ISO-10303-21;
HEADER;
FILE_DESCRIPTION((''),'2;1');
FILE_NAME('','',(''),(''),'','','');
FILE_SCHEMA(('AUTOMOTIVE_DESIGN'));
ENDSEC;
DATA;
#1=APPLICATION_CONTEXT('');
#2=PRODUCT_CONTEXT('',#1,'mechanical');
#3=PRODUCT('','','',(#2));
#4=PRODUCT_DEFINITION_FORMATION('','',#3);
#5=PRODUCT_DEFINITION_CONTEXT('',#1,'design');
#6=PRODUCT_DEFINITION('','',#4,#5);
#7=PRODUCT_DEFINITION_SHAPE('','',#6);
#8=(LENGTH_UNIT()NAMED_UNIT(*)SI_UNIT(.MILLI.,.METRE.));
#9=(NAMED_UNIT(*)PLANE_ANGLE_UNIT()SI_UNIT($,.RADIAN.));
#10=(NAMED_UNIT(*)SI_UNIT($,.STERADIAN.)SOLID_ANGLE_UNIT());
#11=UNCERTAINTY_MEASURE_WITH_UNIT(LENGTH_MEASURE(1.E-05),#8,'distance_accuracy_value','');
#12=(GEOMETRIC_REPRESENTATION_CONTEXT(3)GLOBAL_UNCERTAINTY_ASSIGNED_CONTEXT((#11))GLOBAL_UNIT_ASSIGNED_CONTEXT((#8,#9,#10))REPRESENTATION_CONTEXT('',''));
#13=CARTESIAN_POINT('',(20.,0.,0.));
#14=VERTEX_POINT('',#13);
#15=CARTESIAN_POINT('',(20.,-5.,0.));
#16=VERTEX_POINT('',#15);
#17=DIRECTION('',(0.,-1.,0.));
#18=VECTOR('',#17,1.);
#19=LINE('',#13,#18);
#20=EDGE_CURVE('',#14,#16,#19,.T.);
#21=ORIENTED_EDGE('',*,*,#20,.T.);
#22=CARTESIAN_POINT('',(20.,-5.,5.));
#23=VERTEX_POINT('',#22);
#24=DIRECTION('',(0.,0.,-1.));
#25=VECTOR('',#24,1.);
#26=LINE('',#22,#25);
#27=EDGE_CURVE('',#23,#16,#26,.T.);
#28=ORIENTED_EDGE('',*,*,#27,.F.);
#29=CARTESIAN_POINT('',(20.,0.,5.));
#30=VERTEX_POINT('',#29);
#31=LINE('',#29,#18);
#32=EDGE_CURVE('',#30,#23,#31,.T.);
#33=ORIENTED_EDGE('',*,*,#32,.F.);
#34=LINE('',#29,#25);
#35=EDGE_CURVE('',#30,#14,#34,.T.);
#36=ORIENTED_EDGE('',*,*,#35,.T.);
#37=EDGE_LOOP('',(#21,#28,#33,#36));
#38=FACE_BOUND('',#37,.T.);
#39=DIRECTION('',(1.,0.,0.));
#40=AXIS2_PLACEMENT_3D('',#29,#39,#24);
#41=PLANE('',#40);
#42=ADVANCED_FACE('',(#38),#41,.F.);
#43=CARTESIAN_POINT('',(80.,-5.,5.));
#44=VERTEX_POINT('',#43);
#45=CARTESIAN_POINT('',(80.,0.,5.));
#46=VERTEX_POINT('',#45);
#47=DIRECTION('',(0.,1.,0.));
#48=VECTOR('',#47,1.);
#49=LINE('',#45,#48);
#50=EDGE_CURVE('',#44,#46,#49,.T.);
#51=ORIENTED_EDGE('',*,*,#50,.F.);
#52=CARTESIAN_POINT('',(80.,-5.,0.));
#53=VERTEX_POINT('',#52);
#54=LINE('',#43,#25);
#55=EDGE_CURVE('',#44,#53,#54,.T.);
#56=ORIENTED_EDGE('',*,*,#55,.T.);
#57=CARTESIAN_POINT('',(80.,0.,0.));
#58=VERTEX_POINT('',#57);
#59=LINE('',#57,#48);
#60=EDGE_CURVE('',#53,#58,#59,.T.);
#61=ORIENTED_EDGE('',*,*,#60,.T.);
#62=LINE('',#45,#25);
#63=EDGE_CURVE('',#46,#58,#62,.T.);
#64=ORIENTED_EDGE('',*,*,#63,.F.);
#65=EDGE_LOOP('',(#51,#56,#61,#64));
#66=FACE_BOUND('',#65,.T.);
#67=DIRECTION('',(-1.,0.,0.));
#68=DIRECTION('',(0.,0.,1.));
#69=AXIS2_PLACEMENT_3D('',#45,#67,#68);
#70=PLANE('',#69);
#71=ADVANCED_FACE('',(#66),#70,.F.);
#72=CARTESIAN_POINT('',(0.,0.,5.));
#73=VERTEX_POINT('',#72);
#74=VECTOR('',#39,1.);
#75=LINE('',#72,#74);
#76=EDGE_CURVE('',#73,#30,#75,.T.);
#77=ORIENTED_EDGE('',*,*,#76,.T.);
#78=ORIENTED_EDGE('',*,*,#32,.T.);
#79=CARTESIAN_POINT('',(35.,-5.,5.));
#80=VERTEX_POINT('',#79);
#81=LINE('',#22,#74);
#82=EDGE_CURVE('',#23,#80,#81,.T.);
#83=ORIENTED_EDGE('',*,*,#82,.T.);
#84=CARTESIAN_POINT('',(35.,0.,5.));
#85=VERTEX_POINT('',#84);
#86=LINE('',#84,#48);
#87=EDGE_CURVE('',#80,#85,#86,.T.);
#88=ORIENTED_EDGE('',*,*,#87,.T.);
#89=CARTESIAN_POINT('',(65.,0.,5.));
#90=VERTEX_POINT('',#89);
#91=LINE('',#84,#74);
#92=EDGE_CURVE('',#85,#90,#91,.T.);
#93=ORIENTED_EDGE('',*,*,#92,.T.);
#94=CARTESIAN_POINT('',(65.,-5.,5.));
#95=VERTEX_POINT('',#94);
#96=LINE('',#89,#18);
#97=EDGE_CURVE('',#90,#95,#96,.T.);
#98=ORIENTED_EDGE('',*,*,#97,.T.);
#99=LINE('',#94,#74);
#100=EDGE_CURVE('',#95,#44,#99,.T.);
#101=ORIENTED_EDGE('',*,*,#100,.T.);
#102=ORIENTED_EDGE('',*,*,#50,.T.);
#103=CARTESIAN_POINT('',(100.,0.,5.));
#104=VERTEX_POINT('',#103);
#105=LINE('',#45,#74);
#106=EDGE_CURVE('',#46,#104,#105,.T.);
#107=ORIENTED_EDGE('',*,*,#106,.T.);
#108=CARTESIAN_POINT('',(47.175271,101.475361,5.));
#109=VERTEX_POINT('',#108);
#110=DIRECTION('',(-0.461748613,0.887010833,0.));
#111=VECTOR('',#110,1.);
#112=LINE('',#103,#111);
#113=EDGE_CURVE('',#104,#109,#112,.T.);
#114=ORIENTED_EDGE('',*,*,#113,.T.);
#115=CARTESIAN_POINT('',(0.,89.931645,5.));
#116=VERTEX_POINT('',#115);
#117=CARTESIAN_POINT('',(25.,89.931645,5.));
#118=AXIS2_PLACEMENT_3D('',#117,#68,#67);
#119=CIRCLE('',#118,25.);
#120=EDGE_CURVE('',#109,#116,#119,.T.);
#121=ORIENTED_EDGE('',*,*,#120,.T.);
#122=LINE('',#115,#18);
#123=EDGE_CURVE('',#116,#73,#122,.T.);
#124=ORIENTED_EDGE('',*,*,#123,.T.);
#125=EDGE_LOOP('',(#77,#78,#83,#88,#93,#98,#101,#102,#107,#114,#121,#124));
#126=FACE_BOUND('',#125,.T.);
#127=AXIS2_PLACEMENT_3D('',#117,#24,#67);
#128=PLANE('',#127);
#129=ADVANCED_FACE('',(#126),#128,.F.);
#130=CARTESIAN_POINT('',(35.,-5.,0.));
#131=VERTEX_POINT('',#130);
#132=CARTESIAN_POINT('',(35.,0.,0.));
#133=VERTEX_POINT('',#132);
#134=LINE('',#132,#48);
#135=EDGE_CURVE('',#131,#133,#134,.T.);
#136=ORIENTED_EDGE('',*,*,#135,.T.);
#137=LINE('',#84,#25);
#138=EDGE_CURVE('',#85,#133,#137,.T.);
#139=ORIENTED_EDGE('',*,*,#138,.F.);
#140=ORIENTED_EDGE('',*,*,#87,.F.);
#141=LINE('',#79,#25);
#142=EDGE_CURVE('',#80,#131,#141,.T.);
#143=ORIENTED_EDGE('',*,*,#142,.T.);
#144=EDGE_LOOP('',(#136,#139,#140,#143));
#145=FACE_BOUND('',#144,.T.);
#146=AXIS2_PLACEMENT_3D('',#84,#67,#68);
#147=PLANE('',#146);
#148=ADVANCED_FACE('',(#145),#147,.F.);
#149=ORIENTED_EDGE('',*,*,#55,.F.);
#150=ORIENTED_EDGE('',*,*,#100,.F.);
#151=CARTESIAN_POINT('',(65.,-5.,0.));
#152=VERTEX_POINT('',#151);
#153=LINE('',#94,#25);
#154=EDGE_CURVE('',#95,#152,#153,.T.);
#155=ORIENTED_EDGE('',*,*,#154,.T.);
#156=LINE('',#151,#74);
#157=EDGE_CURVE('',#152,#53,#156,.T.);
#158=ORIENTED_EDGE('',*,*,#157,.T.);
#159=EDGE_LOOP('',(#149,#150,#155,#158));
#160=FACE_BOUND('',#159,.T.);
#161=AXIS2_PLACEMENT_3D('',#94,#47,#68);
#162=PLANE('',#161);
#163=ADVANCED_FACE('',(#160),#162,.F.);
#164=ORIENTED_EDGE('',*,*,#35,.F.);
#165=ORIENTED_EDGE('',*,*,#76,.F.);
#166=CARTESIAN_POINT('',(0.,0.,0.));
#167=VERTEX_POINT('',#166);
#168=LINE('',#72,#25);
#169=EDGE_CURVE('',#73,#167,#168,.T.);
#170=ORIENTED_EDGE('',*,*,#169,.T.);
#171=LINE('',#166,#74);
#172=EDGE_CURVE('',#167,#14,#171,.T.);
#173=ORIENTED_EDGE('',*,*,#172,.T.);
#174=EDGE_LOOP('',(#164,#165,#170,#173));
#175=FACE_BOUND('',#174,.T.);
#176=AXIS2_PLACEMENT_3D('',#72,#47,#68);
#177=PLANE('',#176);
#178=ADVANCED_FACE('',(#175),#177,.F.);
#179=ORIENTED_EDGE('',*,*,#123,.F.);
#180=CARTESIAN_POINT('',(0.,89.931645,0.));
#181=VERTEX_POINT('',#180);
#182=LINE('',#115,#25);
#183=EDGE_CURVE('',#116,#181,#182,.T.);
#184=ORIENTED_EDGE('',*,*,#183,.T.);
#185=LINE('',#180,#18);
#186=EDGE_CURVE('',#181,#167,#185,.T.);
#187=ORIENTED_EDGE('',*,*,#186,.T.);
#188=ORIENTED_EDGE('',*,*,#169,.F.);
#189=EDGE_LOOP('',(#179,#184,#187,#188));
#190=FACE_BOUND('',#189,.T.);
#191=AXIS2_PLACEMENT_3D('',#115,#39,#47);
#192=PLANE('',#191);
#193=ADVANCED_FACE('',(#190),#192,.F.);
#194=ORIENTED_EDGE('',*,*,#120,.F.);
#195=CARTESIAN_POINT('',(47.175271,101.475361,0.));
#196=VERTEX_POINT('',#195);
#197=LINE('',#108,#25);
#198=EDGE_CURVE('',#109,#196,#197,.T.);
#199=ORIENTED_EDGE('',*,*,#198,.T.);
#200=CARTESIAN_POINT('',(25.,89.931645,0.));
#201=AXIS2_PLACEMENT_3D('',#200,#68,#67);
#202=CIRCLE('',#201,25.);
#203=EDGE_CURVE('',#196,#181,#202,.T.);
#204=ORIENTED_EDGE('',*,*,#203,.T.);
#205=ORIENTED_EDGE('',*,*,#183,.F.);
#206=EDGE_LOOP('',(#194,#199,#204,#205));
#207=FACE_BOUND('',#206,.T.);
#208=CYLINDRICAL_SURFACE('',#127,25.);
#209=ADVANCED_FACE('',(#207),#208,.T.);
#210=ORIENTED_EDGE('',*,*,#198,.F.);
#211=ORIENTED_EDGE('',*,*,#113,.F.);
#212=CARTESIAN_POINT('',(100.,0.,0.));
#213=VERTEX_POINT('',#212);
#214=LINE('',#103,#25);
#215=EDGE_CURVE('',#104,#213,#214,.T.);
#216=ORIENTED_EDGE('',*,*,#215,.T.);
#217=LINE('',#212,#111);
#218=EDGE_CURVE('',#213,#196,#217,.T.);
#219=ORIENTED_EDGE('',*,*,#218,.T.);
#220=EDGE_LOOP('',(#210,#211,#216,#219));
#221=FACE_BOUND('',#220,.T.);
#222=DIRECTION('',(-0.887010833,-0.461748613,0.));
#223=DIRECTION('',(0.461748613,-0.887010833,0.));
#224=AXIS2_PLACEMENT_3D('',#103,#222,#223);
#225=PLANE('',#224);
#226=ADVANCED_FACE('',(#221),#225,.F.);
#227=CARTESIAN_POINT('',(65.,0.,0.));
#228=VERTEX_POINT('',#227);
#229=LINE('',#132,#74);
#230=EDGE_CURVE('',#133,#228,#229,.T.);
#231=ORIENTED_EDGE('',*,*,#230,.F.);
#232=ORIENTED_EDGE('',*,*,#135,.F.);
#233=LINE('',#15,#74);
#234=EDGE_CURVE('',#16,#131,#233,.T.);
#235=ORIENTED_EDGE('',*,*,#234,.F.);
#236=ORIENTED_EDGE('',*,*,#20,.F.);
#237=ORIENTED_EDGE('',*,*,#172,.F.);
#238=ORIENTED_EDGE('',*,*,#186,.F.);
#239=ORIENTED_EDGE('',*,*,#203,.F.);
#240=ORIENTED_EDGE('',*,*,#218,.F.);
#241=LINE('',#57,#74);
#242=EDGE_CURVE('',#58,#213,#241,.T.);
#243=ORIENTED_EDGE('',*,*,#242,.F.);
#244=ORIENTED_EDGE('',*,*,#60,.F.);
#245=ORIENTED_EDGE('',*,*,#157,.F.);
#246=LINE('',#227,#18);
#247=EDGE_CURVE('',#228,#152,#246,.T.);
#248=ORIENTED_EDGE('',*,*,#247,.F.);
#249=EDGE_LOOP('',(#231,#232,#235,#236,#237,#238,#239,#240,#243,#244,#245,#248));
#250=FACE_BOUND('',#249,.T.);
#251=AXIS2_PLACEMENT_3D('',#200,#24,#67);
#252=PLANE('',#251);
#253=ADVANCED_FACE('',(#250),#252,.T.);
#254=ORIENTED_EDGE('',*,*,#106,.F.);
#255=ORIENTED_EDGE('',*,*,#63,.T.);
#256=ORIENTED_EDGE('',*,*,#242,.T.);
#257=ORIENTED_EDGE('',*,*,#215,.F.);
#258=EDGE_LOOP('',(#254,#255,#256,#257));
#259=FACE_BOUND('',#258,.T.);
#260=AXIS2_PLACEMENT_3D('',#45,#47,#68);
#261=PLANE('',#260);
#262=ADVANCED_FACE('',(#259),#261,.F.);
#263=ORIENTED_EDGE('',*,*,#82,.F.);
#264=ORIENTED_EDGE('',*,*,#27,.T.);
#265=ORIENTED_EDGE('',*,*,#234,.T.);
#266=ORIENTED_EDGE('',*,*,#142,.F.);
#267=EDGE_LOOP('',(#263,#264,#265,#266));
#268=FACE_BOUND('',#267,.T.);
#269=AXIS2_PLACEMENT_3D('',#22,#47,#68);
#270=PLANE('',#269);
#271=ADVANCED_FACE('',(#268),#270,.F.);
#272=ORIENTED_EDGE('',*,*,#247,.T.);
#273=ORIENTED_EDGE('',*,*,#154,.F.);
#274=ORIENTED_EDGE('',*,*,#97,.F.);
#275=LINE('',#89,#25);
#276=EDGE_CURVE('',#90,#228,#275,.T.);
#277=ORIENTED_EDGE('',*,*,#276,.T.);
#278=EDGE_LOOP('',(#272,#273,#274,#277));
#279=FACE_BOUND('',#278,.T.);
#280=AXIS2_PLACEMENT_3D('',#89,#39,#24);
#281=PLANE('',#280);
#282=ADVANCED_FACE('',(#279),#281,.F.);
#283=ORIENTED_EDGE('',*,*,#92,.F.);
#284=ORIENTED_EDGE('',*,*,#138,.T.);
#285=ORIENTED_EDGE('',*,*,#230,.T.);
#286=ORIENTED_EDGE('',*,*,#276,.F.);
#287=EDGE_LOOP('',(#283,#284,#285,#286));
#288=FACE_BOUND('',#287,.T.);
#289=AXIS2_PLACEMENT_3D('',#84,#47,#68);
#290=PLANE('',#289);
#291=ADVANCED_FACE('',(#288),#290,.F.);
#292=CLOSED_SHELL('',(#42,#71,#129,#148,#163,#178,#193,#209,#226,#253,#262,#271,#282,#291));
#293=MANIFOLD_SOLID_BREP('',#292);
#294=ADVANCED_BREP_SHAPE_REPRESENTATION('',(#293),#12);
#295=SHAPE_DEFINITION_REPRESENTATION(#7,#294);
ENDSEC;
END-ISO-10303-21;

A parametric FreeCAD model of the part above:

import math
import FreeCAD as App
import Part
import Sketcher
Q = App.Units.Quantity

doc = App.newDocument("Part")
body = doc.addObject("PartDesign::Body", "Body")

# Sketch on XY plane
sketch1 = doc.addObject("Sketcher::SketchObject", "Sketch")
body.addObject(sketch1)
sketch1.AttachmentSupport = (doc.XY_Plane, [""])
sketch1.MapMode = "FlatFace"
sketch1.addGeometry(Part.LineSegment(App.Vector(0, 89.931645, 0), App.Vector(0, 0, 0)), False)
sketch1.addGeometry(Part.LineSegment(App.Vector(0, 0, 0), App.Vector(20, 0, 0)), False)
sketch1.addGeometry(Part.LineSegment(App.Vector(20, 0, 0), App.Vector(20, -5, 0)), False)
sketch1.addGeometry(Part.LineSegment(App.Vector(20, -5, 0), App.Vector(35, -5, 0)), False)
sketch1.addGeometry(Part.LineSegment(App.Vector(35, -5, 0), App.Vector(35, 0, 0)), False)
sketch1.addGeometry(Part.LineSegment(App.Vector(35, 0, 0), App.Vector(65, 0, 0)), False)
sketch1.addGeometry(Part.LineSegment(App.Vector(65, 0, 0), App.Vector(65, -5, 0)), False)
sketch1.addGeometry(Part.LineSegment(App.Vector(65, -5, 0), App.Vector(80, -5, 0)), False)
sketch1.addGeometry(Part.LineSegment(App.Vector(80, -5, 0), App.Vector(80, 0, 0)), False)
sketch1.addGeometry(Part.LineSegment(App.Vector(80, 0, 0), App.Vector(100, 0, 0)), False)
sketch1.addGeometry(Part.LineSegment(App.Vector(100, 0, 0), App.Vector(47.175271, 101.475361, 0)), False)
sketch1.addGeometry(Part.ArcOfCircle(Part.Circle(App.Vector(25, 89.931645, 0), App.Vector(0, 0, 1), 25), math.radians(27.5), math.radians(180)), False)
sketch1.addConstraint(Sketcher.Constraint("Coincident", 0, 2, 1, 1))
sketch1.addConstraint(Sketcher.Constraint("Coincident", 1, 2, 2, 1))
sketch1.addConstraint(Sketcher.Constraint("Coincident", 2, 2, 3, 1))
sketch1.addConstraint(Sketcher.Constraint("Coincident", 3, 2, 4, 1))
sketch1.addConstraint(Sketcher.Constraint("Coincident", 4, 2, 5, 1))
sketch1.addConstraint(Sketcher.Constraint("Coincident", 5, 2, 6, 1))
sketch1.addConstraint(Sketcher.Constraint("Coincident", 6, 2, 7, 1))
sketch1.addConstraint(Sketcher.Constraint("Coincident", 7, 2, 8, 1))
sketch1.addConstraint(Sketcher.Constraint("Coincident", 8, 2, 9, 1))
sketch1.addConstraint(Sketcher.Constraint("Coincident", 9, 2, 10, 1))
sketch1.addConstraint(Sketcher.Constraint("Tangent", 10, 2, 11, 1))
sketch1.addConstraint(Sketcher.Constraint("Tangent", 11, 2, 0, 1))
sketch1.addConstraint(Sketcher.Constraint("Vertical", 0))
sketch1.addConstraint(Sketcher.Constraint("Horizontal", 1))
sketch1.addConstraint(Sketcher.Constraint("Vertical", 2))
sketch1.addConstraint(Sketcher.Constraint("Horizontal", 3))
sketch1.addConstraint(Sketcher.Constraint("Vertical", 4))
sketch1.addConstraint(Sketcher.Constraint("Horizontal", 5))
sketch1.addConstraint(Sketcher.Constraint("Vertical", 6))
sketch1.addConstraint(Sketcher.Constraint("Horizontal", 7))
sketch1.addConstraint(Sketcher.Constraint("Vertical", 8))
sketch1.addConstraint(Sketcher.Constraint("Horizontal", 9))
sketch1.addConstraint(Sketcher.Constraint("Coincident", 0, 2, -1, 1))
sketch1.addConstraint(Sketcher.Constraint("PointOnObject", 4, 2, -1))
sketch1.addConstraint(Sketcher.Constraint("PointOnObject", 8, 2, -1))
sketch1.addConstraint(Sketcher.Constraint("Horizontal", 3, 2, 6, 2))
sketch1.addConstraint(Sketcher.Constraint("Equal", 3, 7))
sketch1.addConstraint(Sketcher.Constraint("Equal", 1, 9))
sketch1.addConstraint(Sketcher.Constraint("Radius", 11, Q("25 mm")))
sketch1.addConstraint(Sketcher.Constraint("DistanceX", 1, 1, 1, 2, Q("20 mm")))
sketch1.addConstraint(Sketcher.Constraint("DistanceX", 3, 1, 3, 2, Q("15 mm")))
sketch1.addConstraint(Sketcher.Constraint("DistanceX", 5, 1, 5, 2, Q("30 mm")))
sketch1.addConstraint(Sketcher.Constraint("DistanceY", 2, 2, 2, 1, Q("5 mm")))
sketch1.addConstraint(Sketcher.Constraint("Angle", 10, Q("117.5 deg")))
pad1 = doc.addObject("PartDesign::Pad", "Pad")
body.addObject(pad1)
pad1.Profile = sketch1
pad1.Length = 5

doc.recompute()
